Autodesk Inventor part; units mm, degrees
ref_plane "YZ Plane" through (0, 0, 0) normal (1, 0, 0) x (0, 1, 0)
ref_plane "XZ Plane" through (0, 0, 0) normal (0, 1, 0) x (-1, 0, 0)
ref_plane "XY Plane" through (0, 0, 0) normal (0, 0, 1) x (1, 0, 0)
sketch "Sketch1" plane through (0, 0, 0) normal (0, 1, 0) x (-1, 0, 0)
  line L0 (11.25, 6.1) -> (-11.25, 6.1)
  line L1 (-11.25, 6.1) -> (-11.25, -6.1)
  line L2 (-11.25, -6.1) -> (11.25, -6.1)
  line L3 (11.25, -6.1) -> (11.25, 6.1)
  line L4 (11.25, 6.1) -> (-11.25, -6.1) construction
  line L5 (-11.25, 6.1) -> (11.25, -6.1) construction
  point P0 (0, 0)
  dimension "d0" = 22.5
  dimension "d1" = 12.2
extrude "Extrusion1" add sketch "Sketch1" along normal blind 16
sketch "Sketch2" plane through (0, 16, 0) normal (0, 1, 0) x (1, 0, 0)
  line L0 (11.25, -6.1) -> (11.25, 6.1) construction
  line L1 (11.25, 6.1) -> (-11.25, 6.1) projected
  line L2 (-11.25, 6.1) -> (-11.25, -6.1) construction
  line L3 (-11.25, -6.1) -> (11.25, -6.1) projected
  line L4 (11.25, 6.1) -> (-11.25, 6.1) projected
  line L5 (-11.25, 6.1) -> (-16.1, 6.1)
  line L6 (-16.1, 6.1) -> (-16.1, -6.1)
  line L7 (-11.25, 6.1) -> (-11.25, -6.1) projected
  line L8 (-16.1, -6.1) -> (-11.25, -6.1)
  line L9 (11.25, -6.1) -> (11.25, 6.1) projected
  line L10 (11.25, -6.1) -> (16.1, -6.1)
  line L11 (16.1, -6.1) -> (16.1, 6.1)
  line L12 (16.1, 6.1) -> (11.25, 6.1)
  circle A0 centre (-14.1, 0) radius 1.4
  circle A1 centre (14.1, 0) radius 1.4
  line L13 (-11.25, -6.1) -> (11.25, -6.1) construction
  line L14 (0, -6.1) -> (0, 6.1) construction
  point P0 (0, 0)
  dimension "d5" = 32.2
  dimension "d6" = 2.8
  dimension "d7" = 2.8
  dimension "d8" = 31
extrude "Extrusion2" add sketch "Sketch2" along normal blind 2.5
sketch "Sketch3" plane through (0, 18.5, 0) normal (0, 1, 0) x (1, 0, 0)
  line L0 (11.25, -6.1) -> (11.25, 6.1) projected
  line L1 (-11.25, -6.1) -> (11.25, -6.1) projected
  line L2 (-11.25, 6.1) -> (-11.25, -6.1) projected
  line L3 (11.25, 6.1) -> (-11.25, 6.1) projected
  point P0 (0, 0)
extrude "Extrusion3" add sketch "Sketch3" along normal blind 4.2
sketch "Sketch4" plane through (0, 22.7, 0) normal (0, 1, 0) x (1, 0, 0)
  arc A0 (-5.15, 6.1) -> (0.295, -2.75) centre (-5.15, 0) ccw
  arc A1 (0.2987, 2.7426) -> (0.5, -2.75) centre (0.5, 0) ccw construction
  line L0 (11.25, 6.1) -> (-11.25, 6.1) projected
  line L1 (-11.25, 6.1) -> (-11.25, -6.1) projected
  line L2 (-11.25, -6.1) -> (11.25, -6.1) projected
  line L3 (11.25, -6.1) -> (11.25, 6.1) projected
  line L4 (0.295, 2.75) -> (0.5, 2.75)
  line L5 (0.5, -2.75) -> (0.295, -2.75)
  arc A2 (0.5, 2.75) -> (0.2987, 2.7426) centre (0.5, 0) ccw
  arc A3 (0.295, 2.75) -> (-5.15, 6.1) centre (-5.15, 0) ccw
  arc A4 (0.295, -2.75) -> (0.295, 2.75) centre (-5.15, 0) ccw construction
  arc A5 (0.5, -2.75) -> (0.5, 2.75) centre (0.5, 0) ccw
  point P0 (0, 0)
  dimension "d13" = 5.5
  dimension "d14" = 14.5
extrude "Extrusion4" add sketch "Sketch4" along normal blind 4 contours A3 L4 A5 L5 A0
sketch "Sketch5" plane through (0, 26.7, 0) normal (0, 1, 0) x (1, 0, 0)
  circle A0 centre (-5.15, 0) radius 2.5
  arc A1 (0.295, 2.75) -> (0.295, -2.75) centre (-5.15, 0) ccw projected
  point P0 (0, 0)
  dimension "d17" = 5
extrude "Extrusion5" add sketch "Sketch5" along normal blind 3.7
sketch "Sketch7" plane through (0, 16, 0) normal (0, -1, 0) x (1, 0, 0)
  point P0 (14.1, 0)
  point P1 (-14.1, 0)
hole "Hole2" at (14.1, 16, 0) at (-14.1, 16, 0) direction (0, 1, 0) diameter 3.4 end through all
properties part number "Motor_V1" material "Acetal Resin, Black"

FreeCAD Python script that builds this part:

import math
import FreeCAD as App
import Part
import Sketcher
from FreeCAD import Vector
Q = App.Units.Quantity

doc = App.newDocument("Part")
body = doc.addObject("PartDesign::Body", "Body")

# Sketch on XZ plane
sketch1 = doc.addObject("Sketcher::SketchObject", "Sketch")
body.addObject(sketch1)
sketch1.AttachmentSupport = (doc.XZ_Plane, [""])
sketch1.MapMode = "FlatFace"
sketch1.addGeometry([
    Part.LineSegment(Vector(-11, -6, 0), Vector(-11, 6, 0)),
    Part.LineSegment(Vector(-11, 6, 0), Vector(11, 6, 0)),
    Part.LineSegment(Vector(11, 6, 0), Vector(11, -6, 0)),
    Part.LineSegment(Vector(11, -6, 0), Vector(-11, -6, 0)),
], False)
sketch1.addConstraint([
    Sketcher.Constraint("Coincident", 0, 2, 1, 1),
    Sketcher.Constraint("Coincident", 1, 2, 2, 1),
    Sketcher.Constraint("Coincident", 2, 2, 3, 1),
    Sketcher.Constraint("Coincident", 3, 2, 0, 1),
    Sketcher.Constraint("Vertical", 0),
    Sketcher.Constraint("Horizontal", 1),
    Sketcher.Constraint("Vertical", 2),
    Sketcher.Constraint("Horizontal", 3),
    Sketcher.Constraint("Symmetric", 0, 2, 2, 2, -1, 1),
    Sketcher.Constraint("DistanceX", 1, 1, 1, 2, Q("22.5 mm")),
    Sketcher.Constraint("DistanceY", 0, 1, 0, 2, Q("12.2 mm")),
])
pad1 = doc.addObject("PartDesign::Pad", "Pad")
body.addObject(pad1)
pad1.Profile = sketch1
pad1.Length = 16
pad1.Reversed = True

# Sketch on XZ plane
sketch2 = doc.addObject("Sketcher::SketchObject", "Sketch001")
body.addObject(sketch2)
sketch2.AttachmentSupport = (doc.XZ_Plane, [""])
sketch2.MapMode = "FlatFace"
sketch2.AttachmentOffset = App.Placement(Vector(0, 0, -16), App.Rotation())
sketch2.addGeometry([
    Part.LineSegment(Vector(16.1, 6.1, 0), Vector(16.1, -6.1, 0)),  # 0
    Part.LineSegment(Vector(16.1, -6.1, 0), Vector(-16.1, -6.1, 0)),  # 1
    Part.LineSegment(Vector(-16.1, -6.1, 0), Vector(-16.1, 6.1, 0)),  # 2
    Part.LineSegment(Vector(-16.1, 6.1, 0), Vector(16.1, 6.1, 0)),  # 3
    Part.Circle(Vector(14.1, 0, 0), Vector(0, 0, 1), 1.4),  # 4
    Part.Circle(Vector(-14.1, 0, 0), Vector(0, 0, 1), 1.4),  # 5
], False)
sketch2.addConstraint([
    Sketcher.Constraint("Coincident", 0, 2, 1, 1),
    Sketcher.Constraint("Coincident", 1, 2, 2, 1),
    Sketcher.Constraint("Coincident", 2, 2, 3, 1),
    Sketcher.Constraint("Coincident", 3, 2, 0, 1),
    Sketcher.Constraint("Vertical", 0),
    Sketcher.Constraint("Horizontal", 1),
    Sketcher.Constraint("Vertical", 2),
    Sketcher.Constraint("Horizontal", 3),
    Sketcher.Constraint("Equal", 4, 5),
    Sketcher.Constraint("Symmetric", 4, 3, 5, 3, -1, 1),
    Sketcher.Constraint("Symmetric", 0, 2, 2, 2, -1, 1),
    Sketcher.Constraint("PointOnObject", 4, 3, -1),
    Sketcher.Constraint("Diameter", 4, Q("2.8 mm")),
    Sketcher.Constraint("DistanceX", 1, 2, 1, 1, Q("32.2 mm")),
    Sketcher.Constraint("DistanceY", 0, 2, 0, 1, Q("12.2 mm")),
    Sketcher.Constraint("DistanceX", 4, 3, 0, 2, Q("2 mm")),
])
pad2 = doc.addObject("PartDesign::Pad", "Pad001")
body.addObject(pad2)
pad2.Profile = sketch2
pad2.Length = 2.5
pad2.Reversed = True

# Sketch on XZ plane
sketch3 = doc.addObject("Sketcher::SketchObject", "Sketch002")
body.addObject(sketch3)
sketch3.AttachmentSupport = (doc.XZ_Plane, [""])
sketch3.MapMode = "FlatFace"
sketch3.AttachmentOffset = App.Placement(Vector(0, 0, -18.5), App.Rotation())
sketch3.addGeometry([
    Part.LineSegment(Vector(-11, 6, 0), Vector(11, 6, 0)),
    Part.LineSegment(Vector(11, 6, 0), Vector(11, -6, 0)),
    Part.LineSegment(Vector(11, -6, 0), Vector(-11, -6, 0)),
    Part.LineSegment(Vector(-11, -6, 0), Vector(-11, 6, 0)),
], False)
sketch3.addConstraint([
    Sketcher.Constraint("Coincident", 0, 2, 1, 1),
    Sketcher.Constraint("Coincident", 1, 2, 2, 1),
    Sketcher.Constraint("Coincident", 2, 2, 3, 1),
    Sketcher.Constraint("Coincident", 3, 2, 0, 1),
    Sketcher.Constraint("Horizontal", 0),
    Sketcher.Constraint("Vertical", 1),
    Sketcher.Constraint("Horizontal", 2),
    Sketcher.Constraint("Vertical", 3),
    Sketcher.Constraint("Symmetric", 0, 2, 2, 2, -1, 1),
    Sketcher.Constraint("DistanceX", 0, 1, 0, 2, Q("22.5 mm")),
    Sketcher.Constraint("DistanceY", 1, 2, 1, 1, Q("12.2 mm")),
])
pad3 = doc.addObject("PartDesign::Pad", "Pad002")
body.addObject(pad3)
pad3.Profile = sketch3
pad3.Length = 4.2
pad3.Reversed = True

# Sketch on XZ plane
sketch4 = doc.addObject("Sketcher::SketchObject", "Sketch003")
body.addObject(sketch4)
sketch4.AttachmentSupport = (doc.XZ_Plane, [""])
sketch4.MapMode = "FlatFace"
sketch4.AttachmentOffset = App.Placement(Vector(0, 0, -22.7), App.Rotation())
sketch4.addGeometry([
    Part.ArcOfCircle(Part.Circle(Vector(-5.15, 0, 0), Vector(0, 0, 1), 6.1), math.radians(-90), math.radians(-27)),  # 0
    Part.ArcOfCircle(Part.Circle(Vector(-5.15, 0, 0), Vector(0, 0, 1), 6.1), math.radians(27), math.radians(270)),  # 1
    Part.LineSegment(Vector(0.29, 2.75, 0), Vector(0.5, 2.75, 0)),  # 2
    Part.ArcOfCircle(Part.Circle(Vector(0.5, 0, 0), Vector(0, 0, 1), 2.75), math.radians(-90), math.radians(90)),  # 3
    Part.LineSegment(Vector(0.5, -2.75, 0), Vector(0.29, -2.75, 0)),  # 4
], False)
sketch4.addConstraint([
    Sketcher.Constraint("Tangent", 0, 1, 1, 2),
    Sketcher.Constraint("Coincident", 1, 1, 2, 1),
    Sketcher.Constraint("Tangent", 2, 2, 3, 2),
    Sketcher.Constraint("Tangent", 3, 1, 4, 1),
    Sketcher.Constraint("Coincident", 4, 2, 0, 2),
    Sketcher.Constraint("Horizontal", 2),
    Sketcher.Constraint("Horizontal", 4),
    Sketcher.Constraint("Equal", 0, 1),
    Sketcher.Constraint("Symmetric", 1, 1, 4, 2, -1),
    Sketcher.Constraint("Vertical", 1, 3, 0, 1),
    Sketcher.Constraint("Radius", 3, Q("2.75 mm")),
    Sketcher.Constraint("Radius", 0, Q("6.1 mm")),
    Sketcher.Constraint("DistanceX", -1, 1, 3, 3, Q("0.5 mm")),
    Sketcher.Constraint("DistanceX", 2, 1, 2, 2, Q("0.205 mm")),
])
pad4 = doc.addObject("PartDesign::Pad", "Pad003")
body.addObject(pad4)
pad4.Profile = sketch4
pad4.Length = 4
pad4.Reversed = True

# Sketch on XZ plane
sketch5 = doc.addObject("Sketcher::SketchObject", "Sketch004")
body.addObject(sketch5)
sketch5.AttachmentSupport = (doc.XZ_Plane, [""])
sketch5.MapMode = "FlatFace"
sketch5.AttachmentOffset = App.Placement(Vector(0, 0, -26.7), App.Rotation())
sketch5.addGeometry(Part.Circle(Vector(-5.2, 0, 0), Vector(0, 0, 1), 2.5), False)
sketch5.addConstraint([
    Sketcher.Constraint("PointOnObject", 0, 3, -1),
    Sketcher.Constraint("Diameter", 0, Q("5 mm")),
    Sketcher.Constraint("DistanceX", 0, 3, -1, 1, Q("5.15 mm")),
])
pad5 = doc.addObject("PartDesign::Pad", "Pad004")
body.addObject(pad5)
pad5.Profile = sketch5
pad5.Length = 3.7
pad5.Reversed = True

# Sketch on XZ plane
sketch6 = doc.addObject("Sketcher::SketchObject", "Sketch005")
body.addObject(sketch6)
sketch6.AttachmentSupport = (doc.XZ_Plane, [""])
sketch6.MapMode = "FlatFace"
sketch6.AttachmentOffset = App.Placement(Vector(0, 0, -16), App.Rotation())
sketch6.addGeometry([
    Part.Circle(Vector(14.1, 0, 0), Vector(0, 0, 1), 1.7),
    Part.Circle(Vector(-14.1, 0, 0), Vector(0, 0, 1), 1.7),
], False)
sketch6.addConstraint([
    Sketcher.Constraint("Equal", 0, 1),
    Sketcher.Constraint("Symmetric", 0, 3, 1, 3, -1, 1),
    Sketcher.Constraint("PointOnObject", 0, 3, -1),
    Sketcher.Constraint("Diameter", 0, Q("3.4 mm")),
    Sketcher.Constraint("DistanceX", -1, 1, 0, 3, Q("14.1 mm")),
])
doc.recompute()
hole = doc.addObject("PartDesign::Hole", "Hole")
body.addObject(hole)
hole.Profile = sketch6
hole.ThreadType = "None"
hole.Diameter = 3.4
hole.DepthType = "ThroughAll"

doc.recompute()
